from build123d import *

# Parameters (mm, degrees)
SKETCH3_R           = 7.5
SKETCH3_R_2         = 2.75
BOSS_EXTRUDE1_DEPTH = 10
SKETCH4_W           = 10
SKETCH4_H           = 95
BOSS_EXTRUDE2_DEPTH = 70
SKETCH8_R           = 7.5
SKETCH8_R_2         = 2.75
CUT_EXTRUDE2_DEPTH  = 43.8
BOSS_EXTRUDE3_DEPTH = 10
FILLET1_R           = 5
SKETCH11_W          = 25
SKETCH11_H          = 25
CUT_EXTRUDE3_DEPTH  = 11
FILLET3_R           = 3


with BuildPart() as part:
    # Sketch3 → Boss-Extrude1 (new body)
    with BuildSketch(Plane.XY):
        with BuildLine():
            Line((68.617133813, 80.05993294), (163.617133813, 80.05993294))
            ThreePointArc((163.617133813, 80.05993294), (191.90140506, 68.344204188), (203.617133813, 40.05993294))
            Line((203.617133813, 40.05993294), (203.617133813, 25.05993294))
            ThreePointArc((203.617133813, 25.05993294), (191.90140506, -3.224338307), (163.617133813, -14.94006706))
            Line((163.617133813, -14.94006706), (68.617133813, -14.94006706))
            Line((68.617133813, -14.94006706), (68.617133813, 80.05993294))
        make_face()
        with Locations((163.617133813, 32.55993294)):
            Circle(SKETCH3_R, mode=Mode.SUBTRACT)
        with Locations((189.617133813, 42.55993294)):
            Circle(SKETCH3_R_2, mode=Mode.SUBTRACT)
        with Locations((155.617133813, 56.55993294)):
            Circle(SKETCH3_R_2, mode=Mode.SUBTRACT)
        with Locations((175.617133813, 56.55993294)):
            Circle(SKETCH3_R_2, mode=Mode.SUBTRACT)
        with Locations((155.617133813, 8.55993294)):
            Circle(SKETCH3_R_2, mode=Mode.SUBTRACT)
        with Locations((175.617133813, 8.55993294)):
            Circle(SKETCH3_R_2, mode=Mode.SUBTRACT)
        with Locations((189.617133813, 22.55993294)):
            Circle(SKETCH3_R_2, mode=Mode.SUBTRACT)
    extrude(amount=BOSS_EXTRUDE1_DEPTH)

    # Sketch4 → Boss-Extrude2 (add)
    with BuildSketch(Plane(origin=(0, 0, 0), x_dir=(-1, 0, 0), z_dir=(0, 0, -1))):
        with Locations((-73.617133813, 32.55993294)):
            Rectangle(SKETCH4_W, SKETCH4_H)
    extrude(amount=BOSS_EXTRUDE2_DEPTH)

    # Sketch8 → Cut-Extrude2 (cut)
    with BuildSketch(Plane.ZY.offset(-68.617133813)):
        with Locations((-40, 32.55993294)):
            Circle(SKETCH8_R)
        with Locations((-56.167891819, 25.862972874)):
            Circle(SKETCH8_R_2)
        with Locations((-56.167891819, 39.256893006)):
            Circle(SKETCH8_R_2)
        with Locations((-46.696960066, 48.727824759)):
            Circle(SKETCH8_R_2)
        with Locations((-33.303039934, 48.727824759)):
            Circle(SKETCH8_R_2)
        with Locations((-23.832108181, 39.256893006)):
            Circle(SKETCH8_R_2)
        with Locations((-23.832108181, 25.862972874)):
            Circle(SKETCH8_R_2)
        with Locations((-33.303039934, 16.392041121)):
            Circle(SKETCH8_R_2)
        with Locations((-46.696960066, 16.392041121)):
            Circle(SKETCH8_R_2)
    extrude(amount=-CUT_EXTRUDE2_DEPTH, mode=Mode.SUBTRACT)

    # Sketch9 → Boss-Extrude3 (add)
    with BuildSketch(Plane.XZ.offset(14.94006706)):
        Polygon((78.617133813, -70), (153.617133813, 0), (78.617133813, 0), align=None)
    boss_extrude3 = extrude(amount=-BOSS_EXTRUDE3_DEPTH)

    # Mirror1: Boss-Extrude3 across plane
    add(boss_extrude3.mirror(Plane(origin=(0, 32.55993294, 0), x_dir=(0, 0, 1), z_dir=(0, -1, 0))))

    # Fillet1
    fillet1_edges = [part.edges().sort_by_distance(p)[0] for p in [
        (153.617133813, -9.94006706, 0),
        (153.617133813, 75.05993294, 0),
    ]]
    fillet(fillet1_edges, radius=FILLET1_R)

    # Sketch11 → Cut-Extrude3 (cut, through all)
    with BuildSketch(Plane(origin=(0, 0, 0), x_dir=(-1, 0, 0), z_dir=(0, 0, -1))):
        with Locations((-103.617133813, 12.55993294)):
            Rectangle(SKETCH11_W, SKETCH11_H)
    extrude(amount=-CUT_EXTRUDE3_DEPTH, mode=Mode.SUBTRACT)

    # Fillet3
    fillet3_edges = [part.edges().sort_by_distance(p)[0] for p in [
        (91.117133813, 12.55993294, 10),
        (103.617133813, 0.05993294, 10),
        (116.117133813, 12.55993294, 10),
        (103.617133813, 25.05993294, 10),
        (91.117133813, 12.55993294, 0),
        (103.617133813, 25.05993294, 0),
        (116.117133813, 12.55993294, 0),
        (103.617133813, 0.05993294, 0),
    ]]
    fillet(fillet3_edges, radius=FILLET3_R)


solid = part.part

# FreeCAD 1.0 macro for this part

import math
import FreeCAD as App
import Part
import Sketcher

V = App.Vector


def edges_at(feature, points):
    """Names of the edges that pass closest to the given points."""
    edges = feature.Shape.Edges
    near = lambda p: min(range(len(edges)), key=lambda i: edges[i].distToShape(Part.Vertex(*p))[0])
    return sorted({f"Edge{near(p) + 1}" for p in points})

doc = App.newDocument("Part")
body = doc.addObject("PartDesign::Body", "Body")

# Sketch on XY plane
sketch1 = body.newObject("Sketcher::SketchObject", "Sketch")
sketch1.AttachmentSupport = (doc.getObject("XY_Plane"), [""])
sketch1.MapMode = "FlatFace"
sketch1.addGeometry([
    Part.LineSegment(V(163.617134, 80.059933, 0), V(68.617134, 80.059933, 0)),  # 0
    Part.LineSegment(V(68.617134, 80.059933, 0), V(68.617134, -14.940067, 0)),  # 1
    Part.LineSegment(V(68.617134, -14.940067, 0), V(163.617134, -14.940067, 0)),  # 2
    Part.ArcOfCircle(Part.Circle(V(163.617134, 25.059933, 0), V(0, 0, 1), 40), math.radians(-90), math.radians(0)),  # 3
    Part.LineSegment(V(203.617134, 25.059933, 0), V(203.617134, 40.059933, 0)),  # 4
    Part.ArcOfCircle(Part.Circle(V(163.617134, 40.059933, 0), V(0, 0, 1), 40), math.radians(0), math.radians(90)),  # 5
    Part.Circle(V(175.617134, 8.559933, 0), V(0, 0, 1), 2.75),  # 6
    Part.Circle(V(189.617134, 22.559933, 0), V(0, 0, 1), 2.75),  # 7
    Part.Circle(V(155.617134, 8.559933, 0), V(0, 0, 1), 2.75),  # 8
    Part.Circle(V(189.617134, 42.559933, 0), V(0, 0, 1), 2.75),  # 9
    Part.Circle(V(175.617134, 56.559933, 0), V(0, 0, 1), 2.75),  # 10
    Part.Circle(V(163.617134, 32.559933, 0), V(0, 0, 1), 7.5),  # 11
    Part.Circle(V(155.617134, 56.559933, 0), V(0, 0, 1), 2.75),  # 12
], False)
sketch1.addConstraint([
    Sketcher.Constraint("Coincident", 0, 2, 1, 1),
    Sketcher.Constraint("Coincident", 1, 2, 2, 1),
    Sketcher.Constraint("Tangent", 2, 2, 3, 1),
    Sketcher.Constraint("Tangent", 3, 2, 4, 1),
    Sketcher.Constraint("Tangent", 4, 2, 5, 1),
    Sketcher.Constraint("Tangent", 5, 2, 0, 1),
    Sketcher.Constraint("Horizontal", 0),
    Sketcher.Constraint("Vertical", 1),
    Sketcher.Constraint("Horizontal", 2),
    Sketcher.Constraint("Vertical", 4),
    Sketcher.Constraint("Equal", 3, 5),
    Sketcher.Constraint("Equal", 6, 7),
    Sketcher.Constraint("Equal", 7, 8),
    Sketcher.Constraint("Equal", 8, 9),
    Sketcher.Constraint("Equal", 9, 10),
    Sketcher.Constraint("Equal", 10, 12),
    Sketcher.Constraint("Horizontal", 6, 3, 8, 3),
    Sketcher.Constraint("Horizontal", 10, 3, 12, 3),
    Sketcher.Constraint("Vertical", 7, 3, 9, 3),
    Sketcher.Constraint("Vertical", 6, 3, 10, 3),
    Sketcher.Constraint("Vertical", 5, 3, 11, 3),
    Sketcher.Constraint("Vertical", 8, 3, 12, 3),
    Sketcher.Constraint("Equal", 2, 1),
    Sketcher.Constraint("Diameter", 11, 15.0),
    Sketcher.Constraint("Radius", 3, 40.0),
    Sketcher.Constraint("Diameter", 6, 5.5),
    Sketcher.Constraint("DistanceX", 0, 2, 0, 1, 95.0),
    Sketcher.Constraint("DistanceX", 3, 3, 6, 3, 12.0),
    Sketcher.Constraint("DistanceX", 6, 3, 7, 3, 14.0),
    Sketcher.Constraint("DistanceY", 6, 3, 7, 3, 14.0),
    Sketcher.Constraint("DistanceX", 8, 3, 3, 3, 8.0),
    Sketcher.Constraint("DistanceY", 7, 3, 9, 3, 20.0),
    Sketcher.Constraint("DistanceY", 9, 3, 10, 3, 14.0),
    Sketcher.Constraint("DistanceY", 8, 3, 11, 3, 24.0),
    Sketcher.Constraint("DistanceY", 6, 3, 3, 3, 16.5),
    Sketcher.Constraint("DistanceX", -1, 1, 3, 3, 163.617134),
    Sketcher.Constraint("DistanceY", -1, 1, 3, 3, 25.059933),
])
pad1 = body.newObject("PartDesign::Pad", "Pad")
pad1.Profile = sketch1
pad1.Length = 10

# Sketch on XY plane
sketch2 = body.newObject("Sketcher::SketchObject", "Sketch001")
sketch2.AttachmentSupport = (doc.getObject("XY_Plane"), [""])
sketch2.MapMode = "FlatFace"
sketch2.addGeometry([
    Part.LineSegment(V(78.617134, 80.059933, 0), V(78.617134, -14.940067, 0)),
    Part.LineSegment(V(78.617134, -14.940067, 0), V(68.617134, -14.940067, 0)),
    Part.LineSegment(V(68.617134, -14.940067, 0), V(68.617134, 80.059933, 0)),
    Part.LineSegment(V(68.617134, 80.059933, 0), V(78.617134, 80.059933, 0)),
], False)
sketch2.addConstraint([
    Sketcher.Constraint("Coincident", 0, 2, 1, 1),
    Sketcher.Constraint("Coincident", 1, 2, 2, 1),
    Sketcher.Constraint("Coincident", 2, 2, 3, 1),
    Sketcher.Constraint("Coincident", 3, 2, 0, 1),
    Sketcher.Constraint("Vertical", 0),
    Sketcher.Constraint("Horizontal", 1),
    Sketcher.Constraint("Vertical", 2),
    Sketcher.Constraint("Horizontal", 3),
    Sketcher.Constraint("DistanceX", 1, 2, 1, 1, 10.0),
    Sketcher.Constraint("DistanceY", 0, 2, 0, 1, 95.0),
    Sketcher.Constraint("DistanceX", -1, 1, 0, 2, 78.617134),
    Sketcher.Constraint("DistanceY", 0, 2, -1, 1, 14.940067),
])
pad2 = body.newObject("PartDesign::Pad", "Pad001")
pad2.Profile = sketch2
pad2.Length = 70
pad2.Reversed = True

# Sketch on YZ plane
sketch3 = body.newObject("Sketcher::SketchObject", "Sketch002")
sketch3.AttachmentSupport = (doc.getObject("YZ_Plane"), [""])
sketch3.MapMode = "FlatFace"
sketch3.AttachmentOffset = App.Placement(V(0, 0, 68.617134), App.Rotation())
sketch3.addGeometry([
    Part.Circle(V(32.559933, -40, 0), V(0, 0, 1), 7.5),  # 0
    Part.Circle(V(25.862973, -56.167892, 0), V(0, 0, 1), 2.75),  # 1
    Part.Circle(V(39.256893, -56.167892, 0), V(0, 0, 1), 2.75),  # 2
    Part.Circle(V(48.727825, -46.69696, 0), V(0, 0, 1), 2.75),  # 3
    Part.Circle(V(48.727825, -33.30304, 0), V(0, 0, 1), 2.75),  # 4
    Part.Circle(V(39.256893, -23.832108, 0), V(0, 0, 1), 2.75),  # 5
    Part.Circle(V(25.862973, -23.832108, 0), V(0, 0, 1), 2.75),  # 6
    Part.Circle(V(16.392041, -33.30304, 0), V(0, 0, 1), 2.75),  # 7
    Part.Circle(V(16.392041, -46.69696, 0), V(0, 0, 1), 2.75),  # 8
], False)
sketch3.addConstraint([
    Sketcher.Constraint("Equal", 1, 2),
    Sketcher.Constraint("Equal", 2, 3),
    Sketcher.Constraint("Equal", 3, 4),
    Sketcher.Constraint("Equal", 4, 5),
    Sketcher.Constraint("Equal", 5, 6),
    Sketcher.Constraint("Equal", 6, 7),
    Sketcher.Constraint("Equal", 7, 8),
    Sketcher.Constraint("Horizontal", 1, 3, 2, 3),
    Sketcher.Constraint("Horizontal", 5, 3, 6, 3),
    Sketcher.Constraint("Horizontal", 4, 3, 7, 3),
    Sketcher.Constraint("Horizontal", 3, 3, 8, 3),
    Sketcher.Constraint("Vertical", 3, 3, 4, 3),
    Sketcher.Constraint("Vertical", 2, 3, 5, 3),
    Sketcher.Constraint("Vertical", 1, 3, 6, 3),
    Sketcher.Constraint("Vertical", 7, 3, 8, 3),
    Sketcher.Constraint("Diameter", 0, 15.0),
    Sketcher.Constraint("Diameter", 1, 5.5),
    Sketcher.Constraint("DistanceY", 0, 3, -1, 1, 40.0),
    Sketcher.Constraint("DistanceY", 1, 3, -1, 1, 56.167892),
    Sketcher.Constraint("DistanceY", 3, 3, -1, 1, 46.69696),
    Sketcher.Constraint("DistanceY", 4, 3, -1, 1, 33.30304),
    Sketcher.Constraint("DistanceY", 5, 3, -1, 1, 23.832108),
    Sketcher.Constraint("DistanceX", -1, 1, 7, 3, 16.392041),
    Sketcher.Constraint("DistanceX", 1, 3, 0, 3, 6.69696),
    Sketcher.Constraint("DistanceX", 1, 3, 2, 3, 13.39392),
    Sketcher.Constraint("DistanceX", 2, 3, 3, 3, 9.470932),
    Sketcher.Constraint("DistanceX", 7, 3, 6, 3, 9.470932),
])
pocket1 = body.newObject("PartDesign::Pocket", "Pocket")
pocket1.Profile = sketch3
pocket1.Length = 43.8
pocket1.Reversed = True

# Sketch on XZ plane
sketch4 = body.newObject("Sketcher::SketchObject", "Sketch003")
sketch4.AttachmentSupport = (doc.getObject("XZ_Plane"), [""])
sketch4.MapMode = "FlatFace"
sketch4.AttachmentOffset = App.Placement(V(0, 0, 14.940067), App.Rotation())
sketch4.addGeometry([
    Part.LineSegment(V(78.617134, -70, 0), V(153.617134, 0, 0)),
    Part.LineSegment(V(153.617134, 0, 0), V(78.617134, 0, 0)),
    Part.LineSegment(V(78.617134, 0, 0), V(78.617134, -70, 0)),
], False)
sketch4.addConstraint([
    Sketcher.Constraint("Coincident", 0, 2, 1, 1),
    Sketcher.Constraint("Coincident", 1, 2, 2, 1),
    Sketcher.Constraint("Coincident", 2, 2, 0, 1),
    Sketcher.Constraint("Horizontal", 1),
    Sketcher.Constraint("Vertical", 2),
    Sketcher.Constraint("PointOnObject", 0, 2, -1),
    Sketcher.Constraint("DistanceX", 1, 2, 1, 1, 75.0),
    Sketcher.Constraint("DistanceY", 2, 2, 2, 1, 70.0),
    Sketcher.Constraint("DistanceX", -1, 1, 0, 2, 153.617134),
])
pad3 = body.newObject("PartDesign::Pad", "Pad002")
pad3.Profile = sketch4
pad3.Length = 10
pad3.Reversed = True
doc.recompute()

datumplane = body.newObject("PartDesign::Plane", "DatumPlane")
datumplane.AttachmentSupport = (doc.getObject("XZ_Plane"), [""])
datumplane.MapMode = "FlatFace"
datumplane.AttachmentOffset = App.Placement(V(0, 0, -32.559933), App.Rotation())
mirrored = body.newObject("PartDesign::Mirrored", "Mirrored")
mirrored.Originals = [pad3]
mirrored.MirrorPlane = (datumplane, [""])
body.Tip = mirrored
doc.recompute()

fillet = body.newObject("PartDesign::Fillet", "Fillet")
fillet.Base = (mirrored, edges_at(mirrored, [(153.617, -9.94, 0), (153.617, 75.06, 0)]))
fillet.Radius = 5

# Sketch on XY plane
sketch5 = body.newObject("Sketcher::SketchObject", "Sketch004")
sketch5.AttachmentSupport = (doc.getObject("XY_Plane"), [""])
sketch5.MapMode = "FlatFace"
sketch5.addGeometry([
    Part.LineSegment(V(116.117134, 25.059933, 0), V(116.117134, 0.059933, 0)),
    Part.LineSegment(V(116.117134, 0.059933, 0), V(91.117134, 0.059933, 0)),
    Part.LineSegment(V(91.117134, 0.059933, 0), V(91.117134, 25.059933, 0)),
    Part.LineSegment(V(91.117134, 25.059933, 0), V(116.117134, 25.059933, 0)),
], False)
sketch5.addConstraint([
    Sketcher.Constraint("Coincident", 0, 2, 1, 1),
    Sketcher.Constraint("Coincident", 1, 2, 2, 1),
    Sketcher.Constraint("Coincident", 2, 2, 3, 1),
    Sketcher.Constraint("Coincident", 3, 2, 0, 1),
    Sketcher.Constraint("Vertical", 0),
    Sketcher.Constraint("Horizontal", 1),
    Sketcher.Constraint("Vertical", 2),
    Sketcher.Constraint("Horizontal", 3),
    Sketcher.Constraint("Equal", 3, 0),
    Sketcher.Constraint("DistanceX", 1, 2, 1, 1, 25.0),
    Sketcher.Constraint("DistanceX", -1, 1, 0, 2, 116.117134),
    Sketcher.Constraint("DistanceY", -1, 1, 0, 2, 0.059933),
])
pocket2 = body.newObject("PartDesign::Pocket", "Pocket001")
pocket2.Profile = sketch5
pocket2.Type = "ThroughAll"
pocket2.Reversed = True
doc.recompute()

fillet2 = body.newObject("PartDesign::Fillet", "Fillet001")
fillet2.Base = (pocket2, edges_at(pocket2, [
    (91.117, 12.56, 10),
    (103.617, 0.06, 10),
    (116.117, 12.56, 10),
    (103.617, 25.06, 10),
    (91.117, 12.56, 0),
    (103.617, 25.06, 0),
    (116.117, 12.56, 0),
    (103.617, 0.06, 0),
]))
fillet2.Radius = 3

doc.recompute()
